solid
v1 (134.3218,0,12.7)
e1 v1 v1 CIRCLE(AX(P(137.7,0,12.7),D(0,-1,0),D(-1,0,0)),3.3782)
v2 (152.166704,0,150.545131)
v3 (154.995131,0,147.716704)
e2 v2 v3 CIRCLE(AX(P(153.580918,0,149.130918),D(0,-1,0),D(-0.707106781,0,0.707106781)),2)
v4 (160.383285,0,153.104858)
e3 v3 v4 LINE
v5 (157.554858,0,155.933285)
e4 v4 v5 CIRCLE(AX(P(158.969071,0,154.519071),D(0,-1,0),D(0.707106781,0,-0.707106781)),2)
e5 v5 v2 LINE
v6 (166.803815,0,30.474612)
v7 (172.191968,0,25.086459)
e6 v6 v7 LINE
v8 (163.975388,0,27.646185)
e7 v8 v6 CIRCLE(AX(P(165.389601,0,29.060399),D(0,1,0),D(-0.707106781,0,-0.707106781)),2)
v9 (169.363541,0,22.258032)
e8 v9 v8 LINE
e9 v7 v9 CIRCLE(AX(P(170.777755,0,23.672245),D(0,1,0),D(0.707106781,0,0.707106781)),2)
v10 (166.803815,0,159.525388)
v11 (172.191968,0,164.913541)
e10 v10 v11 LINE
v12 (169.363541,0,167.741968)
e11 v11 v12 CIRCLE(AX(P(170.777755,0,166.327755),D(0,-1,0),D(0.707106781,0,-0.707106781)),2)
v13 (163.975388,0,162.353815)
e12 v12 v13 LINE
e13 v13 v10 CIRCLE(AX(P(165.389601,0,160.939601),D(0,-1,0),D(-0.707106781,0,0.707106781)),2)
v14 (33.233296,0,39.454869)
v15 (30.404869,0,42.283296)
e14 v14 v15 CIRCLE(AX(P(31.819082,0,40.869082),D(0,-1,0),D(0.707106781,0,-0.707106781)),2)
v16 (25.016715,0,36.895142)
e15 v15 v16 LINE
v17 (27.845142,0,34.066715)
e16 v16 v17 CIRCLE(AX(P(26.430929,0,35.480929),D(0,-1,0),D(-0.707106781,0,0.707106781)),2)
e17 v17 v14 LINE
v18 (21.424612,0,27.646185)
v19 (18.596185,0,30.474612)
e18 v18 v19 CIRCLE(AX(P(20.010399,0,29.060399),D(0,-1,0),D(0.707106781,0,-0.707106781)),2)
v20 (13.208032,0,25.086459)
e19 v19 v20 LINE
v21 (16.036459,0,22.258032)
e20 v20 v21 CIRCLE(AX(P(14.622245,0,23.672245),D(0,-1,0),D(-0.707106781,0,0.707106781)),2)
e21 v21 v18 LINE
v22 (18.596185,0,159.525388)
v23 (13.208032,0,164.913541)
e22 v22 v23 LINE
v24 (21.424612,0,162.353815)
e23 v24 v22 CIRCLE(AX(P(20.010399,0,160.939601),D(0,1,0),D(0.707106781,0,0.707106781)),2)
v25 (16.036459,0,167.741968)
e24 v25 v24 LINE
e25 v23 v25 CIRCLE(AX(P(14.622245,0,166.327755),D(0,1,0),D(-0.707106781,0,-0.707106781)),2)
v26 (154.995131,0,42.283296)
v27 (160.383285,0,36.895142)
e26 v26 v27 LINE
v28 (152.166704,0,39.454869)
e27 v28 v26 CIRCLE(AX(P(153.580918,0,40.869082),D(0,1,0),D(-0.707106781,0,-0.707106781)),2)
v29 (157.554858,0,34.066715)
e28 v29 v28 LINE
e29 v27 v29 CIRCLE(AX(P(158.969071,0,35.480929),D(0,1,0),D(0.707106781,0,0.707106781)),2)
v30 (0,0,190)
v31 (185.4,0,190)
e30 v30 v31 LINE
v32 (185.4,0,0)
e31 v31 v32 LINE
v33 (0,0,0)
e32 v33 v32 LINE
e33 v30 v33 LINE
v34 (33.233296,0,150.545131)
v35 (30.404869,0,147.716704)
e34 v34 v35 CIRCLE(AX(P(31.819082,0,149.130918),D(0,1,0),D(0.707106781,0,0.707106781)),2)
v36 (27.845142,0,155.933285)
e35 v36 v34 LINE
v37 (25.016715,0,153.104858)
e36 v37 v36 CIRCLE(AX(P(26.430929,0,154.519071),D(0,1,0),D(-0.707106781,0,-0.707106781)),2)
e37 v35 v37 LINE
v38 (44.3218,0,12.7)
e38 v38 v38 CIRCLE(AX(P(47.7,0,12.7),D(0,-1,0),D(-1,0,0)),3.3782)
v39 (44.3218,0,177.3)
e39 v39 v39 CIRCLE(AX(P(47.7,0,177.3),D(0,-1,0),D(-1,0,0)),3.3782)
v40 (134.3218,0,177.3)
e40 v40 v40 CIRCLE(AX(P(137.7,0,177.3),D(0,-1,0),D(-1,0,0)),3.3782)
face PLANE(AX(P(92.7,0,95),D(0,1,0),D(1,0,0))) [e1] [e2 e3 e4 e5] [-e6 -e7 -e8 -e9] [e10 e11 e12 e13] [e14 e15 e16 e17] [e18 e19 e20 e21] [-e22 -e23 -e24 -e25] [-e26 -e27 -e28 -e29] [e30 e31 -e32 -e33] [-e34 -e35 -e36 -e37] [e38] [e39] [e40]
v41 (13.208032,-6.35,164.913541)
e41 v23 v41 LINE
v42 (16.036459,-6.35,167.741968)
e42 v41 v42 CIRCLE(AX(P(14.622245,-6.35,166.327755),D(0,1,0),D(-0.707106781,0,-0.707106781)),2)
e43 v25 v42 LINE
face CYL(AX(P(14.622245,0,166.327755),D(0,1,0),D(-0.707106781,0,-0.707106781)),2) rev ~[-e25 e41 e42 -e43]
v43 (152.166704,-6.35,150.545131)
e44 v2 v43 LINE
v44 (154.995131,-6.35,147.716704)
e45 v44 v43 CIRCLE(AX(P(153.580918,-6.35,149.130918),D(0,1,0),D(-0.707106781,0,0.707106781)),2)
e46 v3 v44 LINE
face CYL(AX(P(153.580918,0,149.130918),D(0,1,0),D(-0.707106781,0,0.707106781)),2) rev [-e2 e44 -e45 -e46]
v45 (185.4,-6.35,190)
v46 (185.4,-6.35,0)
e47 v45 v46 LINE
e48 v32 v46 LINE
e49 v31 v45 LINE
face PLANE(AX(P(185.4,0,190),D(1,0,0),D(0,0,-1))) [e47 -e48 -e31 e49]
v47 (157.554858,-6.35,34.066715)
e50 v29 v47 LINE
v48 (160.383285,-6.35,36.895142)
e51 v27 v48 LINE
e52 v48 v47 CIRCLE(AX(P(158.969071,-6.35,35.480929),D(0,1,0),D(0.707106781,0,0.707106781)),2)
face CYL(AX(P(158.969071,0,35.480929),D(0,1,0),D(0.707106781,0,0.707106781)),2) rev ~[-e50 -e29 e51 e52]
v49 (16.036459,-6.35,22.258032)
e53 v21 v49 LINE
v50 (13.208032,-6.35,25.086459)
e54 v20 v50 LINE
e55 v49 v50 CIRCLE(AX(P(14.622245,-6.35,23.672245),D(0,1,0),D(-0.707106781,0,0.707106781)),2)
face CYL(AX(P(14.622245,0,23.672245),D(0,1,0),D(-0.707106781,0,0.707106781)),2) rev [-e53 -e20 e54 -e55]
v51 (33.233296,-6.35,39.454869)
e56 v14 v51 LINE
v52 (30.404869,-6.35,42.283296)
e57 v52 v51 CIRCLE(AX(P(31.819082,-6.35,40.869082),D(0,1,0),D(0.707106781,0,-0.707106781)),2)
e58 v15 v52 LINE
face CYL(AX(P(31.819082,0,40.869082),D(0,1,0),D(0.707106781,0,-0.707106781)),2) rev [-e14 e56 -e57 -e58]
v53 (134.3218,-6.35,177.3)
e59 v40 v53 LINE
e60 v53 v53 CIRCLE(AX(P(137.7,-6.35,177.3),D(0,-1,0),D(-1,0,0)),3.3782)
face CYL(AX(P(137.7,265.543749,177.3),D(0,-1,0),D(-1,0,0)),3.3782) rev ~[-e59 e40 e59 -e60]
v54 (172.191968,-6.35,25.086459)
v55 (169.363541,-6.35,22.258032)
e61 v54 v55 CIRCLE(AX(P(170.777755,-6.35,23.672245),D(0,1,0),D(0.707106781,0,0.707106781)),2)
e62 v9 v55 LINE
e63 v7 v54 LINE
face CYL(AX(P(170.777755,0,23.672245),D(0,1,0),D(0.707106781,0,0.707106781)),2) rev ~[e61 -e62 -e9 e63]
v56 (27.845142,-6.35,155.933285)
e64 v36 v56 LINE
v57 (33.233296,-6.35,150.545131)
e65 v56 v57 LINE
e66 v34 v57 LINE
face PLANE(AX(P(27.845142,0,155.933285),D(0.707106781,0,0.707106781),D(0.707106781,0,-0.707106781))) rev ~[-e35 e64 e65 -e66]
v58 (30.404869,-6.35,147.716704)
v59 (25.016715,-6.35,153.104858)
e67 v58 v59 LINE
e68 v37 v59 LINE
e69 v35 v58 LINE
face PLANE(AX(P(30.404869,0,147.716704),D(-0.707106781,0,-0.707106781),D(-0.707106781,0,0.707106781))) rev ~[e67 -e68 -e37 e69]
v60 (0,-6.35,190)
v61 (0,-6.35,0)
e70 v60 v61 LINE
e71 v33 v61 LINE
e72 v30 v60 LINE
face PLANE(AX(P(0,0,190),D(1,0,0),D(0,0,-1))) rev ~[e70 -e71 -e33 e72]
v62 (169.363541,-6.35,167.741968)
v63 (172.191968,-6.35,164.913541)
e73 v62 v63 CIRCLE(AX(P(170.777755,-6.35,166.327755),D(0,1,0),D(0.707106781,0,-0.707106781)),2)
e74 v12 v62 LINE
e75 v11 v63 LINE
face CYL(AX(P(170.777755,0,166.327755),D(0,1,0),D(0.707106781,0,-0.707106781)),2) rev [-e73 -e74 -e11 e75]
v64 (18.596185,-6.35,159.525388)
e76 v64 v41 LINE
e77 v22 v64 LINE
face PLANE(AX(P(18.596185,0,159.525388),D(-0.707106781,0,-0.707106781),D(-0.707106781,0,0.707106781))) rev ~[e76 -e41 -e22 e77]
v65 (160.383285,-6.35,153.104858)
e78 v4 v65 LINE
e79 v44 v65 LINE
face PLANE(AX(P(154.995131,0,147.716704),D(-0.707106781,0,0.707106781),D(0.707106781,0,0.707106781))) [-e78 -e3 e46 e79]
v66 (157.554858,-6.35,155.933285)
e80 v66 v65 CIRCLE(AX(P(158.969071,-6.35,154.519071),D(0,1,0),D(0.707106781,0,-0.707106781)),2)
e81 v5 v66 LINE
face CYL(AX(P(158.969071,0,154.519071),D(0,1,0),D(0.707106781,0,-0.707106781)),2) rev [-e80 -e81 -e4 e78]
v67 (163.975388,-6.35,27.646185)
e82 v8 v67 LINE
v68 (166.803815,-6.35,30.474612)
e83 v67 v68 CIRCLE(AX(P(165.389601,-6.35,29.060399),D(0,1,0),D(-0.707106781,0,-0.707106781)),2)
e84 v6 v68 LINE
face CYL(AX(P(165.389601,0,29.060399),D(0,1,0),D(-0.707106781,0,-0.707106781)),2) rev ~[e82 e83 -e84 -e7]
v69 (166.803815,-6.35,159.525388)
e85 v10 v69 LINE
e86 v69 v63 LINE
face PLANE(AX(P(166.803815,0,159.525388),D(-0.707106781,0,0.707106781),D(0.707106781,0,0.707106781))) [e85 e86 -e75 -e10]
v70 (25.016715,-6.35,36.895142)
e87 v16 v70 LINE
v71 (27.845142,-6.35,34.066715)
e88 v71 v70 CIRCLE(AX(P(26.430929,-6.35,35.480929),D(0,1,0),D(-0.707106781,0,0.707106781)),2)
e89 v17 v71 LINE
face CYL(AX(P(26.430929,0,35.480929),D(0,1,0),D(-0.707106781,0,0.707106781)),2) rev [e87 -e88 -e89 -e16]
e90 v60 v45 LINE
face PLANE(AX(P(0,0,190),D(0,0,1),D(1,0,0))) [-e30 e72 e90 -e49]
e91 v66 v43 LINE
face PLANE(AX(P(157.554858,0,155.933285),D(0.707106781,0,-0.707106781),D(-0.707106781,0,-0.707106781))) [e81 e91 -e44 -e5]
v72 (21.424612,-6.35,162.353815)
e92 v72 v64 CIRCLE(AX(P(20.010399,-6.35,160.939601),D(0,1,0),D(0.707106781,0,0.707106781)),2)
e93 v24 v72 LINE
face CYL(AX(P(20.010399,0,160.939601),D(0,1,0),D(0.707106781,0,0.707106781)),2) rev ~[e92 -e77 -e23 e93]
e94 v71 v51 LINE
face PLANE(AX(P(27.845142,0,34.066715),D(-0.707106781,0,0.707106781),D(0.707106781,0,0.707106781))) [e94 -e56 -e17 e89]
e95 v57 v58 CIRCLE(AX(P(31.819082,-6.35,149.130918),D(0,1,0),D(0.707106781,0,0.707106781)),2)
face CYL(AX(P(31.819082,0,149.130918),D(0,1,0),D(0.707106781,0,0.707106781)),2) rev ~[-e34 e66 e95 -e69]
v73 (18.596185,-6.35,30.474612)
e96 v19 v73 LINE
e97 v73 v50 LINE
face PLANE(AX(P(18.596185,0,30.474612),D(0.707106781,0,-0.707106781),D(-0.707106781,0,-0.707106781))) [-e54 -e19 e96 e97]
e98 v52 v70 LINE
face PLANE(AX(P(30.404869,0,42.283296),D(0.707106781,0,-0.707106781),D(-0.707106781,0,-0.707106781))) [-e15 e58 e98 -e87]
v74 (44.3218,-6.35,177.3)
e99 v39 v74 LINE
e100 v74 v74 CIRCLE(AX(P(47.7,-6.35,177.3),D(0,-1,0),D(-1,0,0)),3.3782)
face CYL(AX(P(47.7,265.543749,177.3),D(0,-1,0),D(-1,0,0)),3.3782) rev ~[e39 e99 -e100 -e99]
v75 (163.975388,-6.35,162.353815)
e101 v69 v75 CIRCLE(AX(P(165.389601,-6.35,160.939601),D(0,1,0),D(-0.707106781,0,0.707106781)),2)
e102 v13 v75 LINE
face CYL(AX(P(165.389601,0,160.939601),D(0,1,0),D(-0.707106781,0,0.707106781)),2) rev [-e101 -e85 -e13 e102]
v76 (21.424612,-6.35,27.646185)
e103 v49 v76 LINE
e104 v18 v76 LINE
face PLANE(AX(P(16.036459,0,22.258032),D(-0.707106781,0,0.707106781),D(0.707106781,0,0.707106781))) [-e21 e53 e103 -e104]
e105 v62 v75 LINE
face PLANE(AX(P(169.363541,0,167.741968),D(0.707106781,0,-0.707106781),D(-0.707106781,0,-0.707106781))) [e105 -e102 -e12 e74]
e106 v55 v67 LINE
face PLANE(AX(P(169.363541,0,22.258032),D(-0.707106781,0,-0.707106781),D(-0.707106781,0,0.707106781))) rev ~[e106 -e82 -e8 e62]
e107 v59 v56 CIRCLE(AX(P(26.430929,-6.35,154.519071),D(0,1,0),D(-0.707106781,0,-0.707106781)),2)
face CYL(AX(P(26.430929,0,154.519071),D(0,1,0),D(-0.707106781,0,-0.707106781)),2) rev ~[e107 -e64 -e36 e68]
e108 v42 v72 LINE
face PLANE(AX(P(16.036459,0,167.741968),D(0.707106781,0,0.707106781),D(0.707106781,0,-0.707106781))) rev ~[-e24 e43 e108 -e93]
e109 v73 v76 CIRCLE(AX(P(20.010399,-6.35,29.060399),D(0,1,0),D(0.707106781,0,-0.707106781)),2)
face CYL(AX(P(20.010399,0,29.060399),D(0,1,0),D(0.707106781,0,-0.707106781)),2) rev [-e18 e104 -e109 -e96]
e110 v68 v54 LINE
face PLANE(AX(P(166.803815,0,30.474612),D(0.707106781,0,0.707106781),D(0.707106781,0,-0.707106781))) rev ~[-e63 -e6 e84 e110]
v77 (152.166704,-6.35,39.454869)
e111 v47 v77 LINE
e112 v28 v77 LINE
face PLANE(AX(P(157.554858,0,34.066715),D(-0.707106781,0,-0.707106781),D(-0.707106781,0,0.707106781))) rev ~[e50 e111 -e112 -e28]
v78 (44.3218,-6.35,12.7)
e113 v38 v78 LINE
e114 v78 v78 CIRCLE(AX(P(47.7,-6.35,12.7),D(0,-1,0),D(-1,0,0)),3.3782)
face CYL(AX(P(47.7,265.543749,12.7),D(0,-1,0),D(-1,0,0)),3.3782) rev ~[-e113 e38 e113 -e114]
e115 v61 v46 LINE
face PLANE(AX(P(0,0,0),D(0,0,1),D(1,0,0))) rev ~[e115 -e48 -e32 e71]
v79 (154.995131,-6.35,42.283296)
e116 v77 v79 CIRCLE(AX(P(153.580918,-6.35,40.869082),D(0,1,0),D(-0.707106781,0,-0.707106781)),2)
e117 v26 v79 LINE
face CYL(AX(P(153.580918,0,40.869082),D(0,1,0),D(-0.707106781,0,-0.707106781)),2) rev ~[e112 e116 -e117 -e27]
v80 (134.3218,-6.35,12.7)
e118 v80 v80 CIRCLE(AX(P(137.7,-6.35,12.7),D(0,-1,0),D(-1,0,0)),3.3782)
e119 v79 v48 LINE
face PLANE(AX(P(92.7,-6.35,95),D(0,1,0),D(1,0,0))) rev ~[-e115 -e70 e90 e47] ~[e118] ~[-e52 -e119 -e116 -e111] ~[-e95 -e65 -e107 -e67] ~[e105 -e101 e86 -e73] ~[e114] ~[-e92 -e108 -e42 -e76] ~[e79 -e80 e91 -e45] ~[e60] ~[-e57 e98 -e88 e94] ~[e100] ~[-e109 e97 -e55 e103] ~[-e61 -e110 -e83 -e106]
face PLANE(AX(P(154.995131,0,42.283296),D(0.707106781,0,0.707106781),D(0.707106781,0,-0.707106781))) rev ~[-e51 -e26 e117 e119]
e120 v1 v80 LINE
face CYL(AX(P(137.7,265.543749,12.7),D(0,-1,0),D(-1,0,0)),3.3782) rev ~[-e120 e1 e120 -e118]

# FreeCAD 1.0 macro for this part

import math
import FreeCAD as App
import Part
import Sketcher

V = App.Vector


def add_polygon(sketch, points):
    """Adds a closed chain of lines whose ends are joined by coincident constraints."""
    first, n = sketch.GeometryCount, len(points)
    for a, b in zip(points, points[1:] + points[:1]):
        sketch.addGeometry(Part.LineSegment(App.Vector(*a, 0), App.Vector(*b, 0)), False)
    for i in range(n):
        sketch.addConstraint(Sketcher.Constraint("Coincident", first + i, 2, first + (i + 1) % n, 1))

doc = App.newDocument("Part")
body = doc.addObject("PartDesign::Body", "Body")

# Sketch on XZ plane
sketch1 = body.newObject("Sketcher::SketchObject", "Sketch")
sketch1.AttachmentSupport = (doc.getObject("XZ_Plane"), [""])
sketch1.MapMode = "FlatFace"
add_polygon(sketch1, [(0, 0), (0, 190), (185, 190), (185, 0)])  # lines 0-3
sketch1.addConstraint([
    Sketcher.Constraint("Vertical", 0),
    Sketcher.Constraint("Horizontal", 1),
    Sketcher.Constraint("Vertical", 2),
    Sketcher.Constraint("Horizontal", 3),
    Sketcher.Constraint("Coincident", 3, 2, -1, 1),
    Sketcher.Constraint("DistanceY", 0, 1, 0, 2, 190.0),
    Sketcher.Constraint("DistanceX", 1, 1, 1, 2, 185.4),
])
pad1 = body.newObject("PartDesign::Pad", "Pad")
pad1.Profile = sketch1
pad1.Length = 6.35

# Sketch on XZ plane
sketch2 = body.newObject("Sketcher::SketchObject", "Sketch001")
sketch2.AttachmentSupport = (doc.getObject("XZ_Plane"), [""])
sketch2.MapMode = "FlatFace"
sketch2.addGeometry([
    Part.ArcOfCircle(Part.Circle(V(20, 29.1, 0), V(0, 0, 1), 2), math.radians(-45), math.radians(135)),  # 0
    Part.LineSegment(V(21.4, 27.6, 0), V(16, 22.3, 0)),  # 1
    Part.ArcOfCircle(Part.Circle(V(14.6, 23.7, 0), V(0, 0, 1), 2), math.radians(135), math.radians(315)),  # 2
    Part.LineSegment(V(13.2, 25.1, 0), V(18.6, 30.5, 0)),  # 3
    Part.LineSegment(V(169.4, 22.3, 0), V(164, 27.6, 0)),  # 4
    Part.ArcOfCircle(Part.Circle(V(165.4, 29.1, 0), V(0, 0, 1), 2), math.radians(45), math.radians(225)),  # 5
    Part.LineSegment(V(166.8, 30.5, 0), V(172.2, 25.1, 0)),  # 6
    Part.ArcOfCircle(Part.Circle(V(170.8, 23.7, 0), V(0, 0, 1), 2), math.radians(-135), math.radians(45)),  # 7
    Part.LineSegment(V(155, 42.3, 0), V(160.4, 36.9, 0)),  # 8
    Part.ArcOfCircle(Part.Circle(V(159, 35.5, 0), V(0, 0, 1), 2), math.radians(-135), math.radians(45)),  # 9
    Part.LineSegment(V(157.6, 34.1, 0), V(152.2, 39.5, 0)),  # 10
    Part.ArcOfCircle(Part.Circle(V(153.6, 40.9, 0), V(0, 0, 1), 2), math.radians(45), math.radians(225)),  # 11
    Part.ArcOfCircle(Part.Circle(V(159, 154.5, 0), V(0, 0, 1), 2), math.radians(-45), math.radians(135)),  # 12
    Part.LineSegment(V(160.4, 153.1, 0), V(155, 147.7, 0)),  # 13
    Part.ArcOfCircle(Part.Circle(V(153.6, 149.1, 0), V(0, 0, 1), 2), math.radians(135), math.radians(315)),  # 14
    Part.LineSegment(V(152.2, 150.5, 0), V(157.6, 155.9, 0)),  # 15
    Part.ArcOfCircle(Part.Circle(V(165.4, 160.9, 0), V(0, 0, 1), 2), math.radians(135), math.radians(315)),  # 16
    Part.LineSegment(V(164, 162.4, 0), V(169.4, 167.7, 0)),  # 17
    Part.ArcOfCircle(Part.Circle(V(170.8, 166.3, 0), V(0, 0, 1), 2), math.radians(-45), math.radians(135)),  # 18
    Part.LineSegment(V(172.2, 164.9, 0), V(166.8, 159.5, 0)),  # 19
    Part.LineSegment(V(16, 167.7, 0), V(21.4, 162.4, 0)),  # 20
    Part.ArcOfCircle(Part.Circle(V(20, 160.9, 0), V(0, 0, 1), 2), math.radians(-135), math.radians(45)),  # 21
    Part.LineSegment(V(18.6, 159.5, 0), V(13.2, 164.9, 0)),  # 22
    Part.ArcOfCircle(Part.Circle(V(14.6, 166.3, 0), V(0, 0, 1), 2), math.radians(45), math.radians(225)),  # 23
    Part.LineSegment(V(30.4, 147.7, 0), V(25, 153.1, 0)),  # 24
    Part.ArcOfCircle(Part.Circle(V(26.4, 154.5, 0), V(0, 0, 1), 2), math.radians(45), math.radians(225)),  # 25
    Part.LineSegment(V(27.8, 155.9, 0), V(33.2, 150.5, 0)),  # 26
    Part.ArcOfCircle(Part.Circle(V(31.8, 149.1, 0), V(0, 0, 1), 2), math.radians(-135), math.radians(45)),  # 27
    Part.LineSegment(V(25, 36.9, 0), V(30.4, 42.3, 0)),  # 28
    Part.ArcOfCircle(Part.Circle(V(31.8, 40.9, 0), V(0, 0, 1), 2), math.radians(-45), math.radians(135)),  # 29
    Part.LineSegment(V(33.2, 39.5, 0), V(27.8, 34.1, 0)),  # 30
    Part.ArcOfCircle(Part.Circle(V(26.4, 35.5, 0), V(0, 0, 1), 2), math.radians(135), math.radians(315)),  # 31
], False)
sketch2.addConstraint([
    Sketcher.Constraint("Tangent", 0, 1, 1, 1),
    Sketcher.Constraint("Tangent", 1, 2, 2, 2),
    Sketcher.Constraint("Tangent", 2, 1, 3, 1),
    Sketcher.Constraint("Tangent", 3, 2, 0, 2),
    Sketcher.Constraint("Tangent", 4, 2, 5, 2),
    Sketcher.Constraint("Tangent", 5, 1, 6, 1),
    Sketcher.Constraint("Tangent", 6, 2, 7, 2),
    Sketcher.Constraint("Tangent", 7, 1, 4, 1),
    Sketcher.Constraint("Tangent", 8, 2, 9, 2),
    Sketcher.Constraint("Tangent", 9, 1, 10, 1),
    Sketcher.Constraint("Tangent", 10, 2, 11, 2),
    Sketcher.Constraint("Tangent", 11, 1, 8, 1),
    Sketcher.Constraint("Tangent", 12, 1, 13, 1),
    Sketcher.Constraint("Tangent", 13, 2, 14, 2),
    Sketcher.Constraint("Tangent", 14, 1, 15, 1),
    Sketcher.Constraint("Tangent", 15, 2, 12, 2),
    Sketcher.Constraint("Tangent", 16, 1, 17, 1),
    Sketcher.Constraint("Tangent", 17, 2, 18, 2),
    Sketcher.Constraint("Tangent", 18, 1, 19, 1),
    Sketcher.Constraint("Tangent", 19, 2, 16, 2),
    Sketcher.Constraint("Tangent", 20, 2, 21, 2),
    Sketcher.Constraint("Tangent", 21, 1, 22, 1),
    Sketcher.Constraint("Tangent", 22, 2, 23, 2),
    Sketcher.Constraint("Tangent", 23, 1, 20, 1),
    Sketcher.Constraint("Tangent", 24, 2, 25, 2),
    Sketcher.Constraint("Tangent", 25, 1, 26, 1),
    Sketcher.Constraint("Tangent", 26, 2, 27, 2),
    Sketcher.Constraint("Tangent", 27, 1, 24, 1),
    Sketcher.Constraint("Tangent", 28, 2, 29, 2),
    Sketcher.Constraint("Tangent", 29, 1, 30, 1),
    Sketcher.Constraint("Tangent", 30, 2, 31, 2),
    Sketcher.Constraint("Tangent", 31, 1, 28, 1),
    Sketcher.Constraint("Equal", 0, 2),
    Sketcher.Constraint("Equal", 2, 5),
    Sketcher.Constraint("Equal", 5, 7),
    Sketcher.Constraint("Equal", 7, 9),
    Sketcher.Constraint("Equal", 9, 11),
    Sketcher.Constraint("Equal", 11, 12),
    Sketcher.Constraint("Equal", 12, 14),
    Sketcher.Constraint("Equal", 14, 16),
    Sketcher.Constraint("Equal", 16, 18),
    Sketcher.Constraint("Equal", 18, 21),
    Sketcher.Constraint("Equal", 21, 23),
    Sketcher.Constraint("Equal", 23, 25),
    Sketcher.Constraint("Equal", 25, 27),
    Sketcher.Constraint("Equal", 27, 29),
    Sketcher.Constraint("Equal", 29, 31),
    Sketcher.Constraint("Perpendicular", 3, 4),
    Sketcher.Constraint("Parallel", 6, 8),
    Sketcher.Constraint("Perpendicular", 10, 13),
    Sketcher.Constraint("Parallel", 15, 17),
    Sketcher.Constraint("Perpendicular", 19, 20),
    Sketcher.Constraint("Parallel", 22, 24),
    Sketcher.Constraint("Perpendicular", 26, 28),
    Sketcher.Constraint("Horizontal", 0, 3, 5, 3),
    Sketcher.Constraint("Horizontal", 2, 3, 7, 3),
    Sketcher.Constraint("Horizontal", 16, 3, 21, 3),
    Sketcher.Constraint("Horizontal", 18, 3, 23, 3),
    Sketcher.Constraint("Horizontal", 12, 3, 25, 3),
    Sketcher.Constraint("Horizontal", 14, 3, 27, 3),
    Sketcher.Constraint("Horizontal", 11, 3, 29, 3),
    Sketcher.Constraint("Horizontal", 9, 3, 31, 3),
    Sketcher.Constraint("Horizontal", 0, 1, 4, 2),
    Sketcher.Constraint("Vertical", 9, 3, 12, 3),
    Sketcher.Constraint("Vertical", 11, 3, 14, 3),
    Sketcher.Constraint("Vertical", 5, 3, 16, 3),
    Sketcher.Constraint("Vertical", 7, 3, 18, 3),
    Sketcher.Constraint("Vertical", 0, 3, 21, 3),
    Sketcher.Constraint("Vertical", 27, 3, 29, 3),
    Sketcher.Constraint("Equal", 6, 8),
    Sketcher.Constraint("Radius", 0, 2.0),
    Sketcher.Constraint("Distance", 1, 7.62),
    Sketcher.Constraint("DistanceX", -1, 1, 0, 3, 20.010399),
    Sketcher.Constraint("DistanceY", -1, 1, 0, 3, 29.060399),
    Sketcher.Constraint("DistanceX", -1, 1, 5, 3, 165.389601),
    Sketcher.Constraint("DistanceY", -1, 1, 16, 3, 160.939601),
    Sketcher.Constraint("DistanceX", -1, 1, 9, 3, 158.969071),
    Sketcher.Constraint("DistanceY", -1, 1, 9, 3, 35.480929),
    Sketcher.Constraint("DistanceY", -1, 1, 12, 3, 154.519071),
    Sketcher.Constraint("DistanceX", -1, 1, 25, 3, 26.430929),
])
pocket1 = body.newObject("PartDesign::Pocket", "Pocket")
pocket1.Profile = sketch2
pocket1.Type = "ThroughAll"
pocket1.Reversed = True

# Sketch on XZ plane
sketch3 = body.newObject("Sketcher::SketchObject", "Sketch002")
sketch3.AttachmentSupport = (doc.getObject("XZ_Plane"), [""])
sketch3.MapMode = "FlatFace"
sketch3.addGeometry([
    Part.Circle(V(47.7, 177.3, 0), V(0, 0, 1), 3.4),
    Part.Circle(V(137.7, 12.7, 0), V(0, 0, 1), 3.4),
    Part.Circle(V(47.7, 12.7, 0), V(0, 0, 1), 3.4),
    Part.Circle(V(137.7, 177.3, 0), V(0, 0, 1), 3.4),
], False)
sketch3.addConstraint([
    Sketcher.Constraint("Equal", 0, 1),
    Sketcher.Constraint("Equal", 1, 2),
    Sketcher.Constraint("Equal", 2, 3),
    Sketcher.Constraint("Horizontal", 1, 3, 2, 3),
    Sketcher.Constraint("Horizontal", 0, 3, 3, 3),
    Sketcher.Constraint("Vertical", 0, 3, 2, 3),
    Sketcher.Constraint("Vertical", 1, 3, 3, 3),
    Sketcher.Constraint("DistanceX", 0, 3, 1, 3, 90.0),
    Sketcher.Constraint("Diameter", 0, 6.7564),
    Sketcher.Constraint("DistanceX", -1, 1, 0, 3, 47.7),
    Sketcher.Constraint("DistanceY", -1, 1, 0, 3, 177.3),
    Sketcher.Constraint("DistanceY", -1, 1, 1, 3, 12.7),
])
doc.recompute()
hole = body.newObject("PartDesign::Hole", "Hole")
hole.Profile = sketch3
hole.ThreadType = "None"
hole.Diameter = 6.7564
hole.DepthType = "ThroughAll"
hole.Reversed = True

doc.recompute()
